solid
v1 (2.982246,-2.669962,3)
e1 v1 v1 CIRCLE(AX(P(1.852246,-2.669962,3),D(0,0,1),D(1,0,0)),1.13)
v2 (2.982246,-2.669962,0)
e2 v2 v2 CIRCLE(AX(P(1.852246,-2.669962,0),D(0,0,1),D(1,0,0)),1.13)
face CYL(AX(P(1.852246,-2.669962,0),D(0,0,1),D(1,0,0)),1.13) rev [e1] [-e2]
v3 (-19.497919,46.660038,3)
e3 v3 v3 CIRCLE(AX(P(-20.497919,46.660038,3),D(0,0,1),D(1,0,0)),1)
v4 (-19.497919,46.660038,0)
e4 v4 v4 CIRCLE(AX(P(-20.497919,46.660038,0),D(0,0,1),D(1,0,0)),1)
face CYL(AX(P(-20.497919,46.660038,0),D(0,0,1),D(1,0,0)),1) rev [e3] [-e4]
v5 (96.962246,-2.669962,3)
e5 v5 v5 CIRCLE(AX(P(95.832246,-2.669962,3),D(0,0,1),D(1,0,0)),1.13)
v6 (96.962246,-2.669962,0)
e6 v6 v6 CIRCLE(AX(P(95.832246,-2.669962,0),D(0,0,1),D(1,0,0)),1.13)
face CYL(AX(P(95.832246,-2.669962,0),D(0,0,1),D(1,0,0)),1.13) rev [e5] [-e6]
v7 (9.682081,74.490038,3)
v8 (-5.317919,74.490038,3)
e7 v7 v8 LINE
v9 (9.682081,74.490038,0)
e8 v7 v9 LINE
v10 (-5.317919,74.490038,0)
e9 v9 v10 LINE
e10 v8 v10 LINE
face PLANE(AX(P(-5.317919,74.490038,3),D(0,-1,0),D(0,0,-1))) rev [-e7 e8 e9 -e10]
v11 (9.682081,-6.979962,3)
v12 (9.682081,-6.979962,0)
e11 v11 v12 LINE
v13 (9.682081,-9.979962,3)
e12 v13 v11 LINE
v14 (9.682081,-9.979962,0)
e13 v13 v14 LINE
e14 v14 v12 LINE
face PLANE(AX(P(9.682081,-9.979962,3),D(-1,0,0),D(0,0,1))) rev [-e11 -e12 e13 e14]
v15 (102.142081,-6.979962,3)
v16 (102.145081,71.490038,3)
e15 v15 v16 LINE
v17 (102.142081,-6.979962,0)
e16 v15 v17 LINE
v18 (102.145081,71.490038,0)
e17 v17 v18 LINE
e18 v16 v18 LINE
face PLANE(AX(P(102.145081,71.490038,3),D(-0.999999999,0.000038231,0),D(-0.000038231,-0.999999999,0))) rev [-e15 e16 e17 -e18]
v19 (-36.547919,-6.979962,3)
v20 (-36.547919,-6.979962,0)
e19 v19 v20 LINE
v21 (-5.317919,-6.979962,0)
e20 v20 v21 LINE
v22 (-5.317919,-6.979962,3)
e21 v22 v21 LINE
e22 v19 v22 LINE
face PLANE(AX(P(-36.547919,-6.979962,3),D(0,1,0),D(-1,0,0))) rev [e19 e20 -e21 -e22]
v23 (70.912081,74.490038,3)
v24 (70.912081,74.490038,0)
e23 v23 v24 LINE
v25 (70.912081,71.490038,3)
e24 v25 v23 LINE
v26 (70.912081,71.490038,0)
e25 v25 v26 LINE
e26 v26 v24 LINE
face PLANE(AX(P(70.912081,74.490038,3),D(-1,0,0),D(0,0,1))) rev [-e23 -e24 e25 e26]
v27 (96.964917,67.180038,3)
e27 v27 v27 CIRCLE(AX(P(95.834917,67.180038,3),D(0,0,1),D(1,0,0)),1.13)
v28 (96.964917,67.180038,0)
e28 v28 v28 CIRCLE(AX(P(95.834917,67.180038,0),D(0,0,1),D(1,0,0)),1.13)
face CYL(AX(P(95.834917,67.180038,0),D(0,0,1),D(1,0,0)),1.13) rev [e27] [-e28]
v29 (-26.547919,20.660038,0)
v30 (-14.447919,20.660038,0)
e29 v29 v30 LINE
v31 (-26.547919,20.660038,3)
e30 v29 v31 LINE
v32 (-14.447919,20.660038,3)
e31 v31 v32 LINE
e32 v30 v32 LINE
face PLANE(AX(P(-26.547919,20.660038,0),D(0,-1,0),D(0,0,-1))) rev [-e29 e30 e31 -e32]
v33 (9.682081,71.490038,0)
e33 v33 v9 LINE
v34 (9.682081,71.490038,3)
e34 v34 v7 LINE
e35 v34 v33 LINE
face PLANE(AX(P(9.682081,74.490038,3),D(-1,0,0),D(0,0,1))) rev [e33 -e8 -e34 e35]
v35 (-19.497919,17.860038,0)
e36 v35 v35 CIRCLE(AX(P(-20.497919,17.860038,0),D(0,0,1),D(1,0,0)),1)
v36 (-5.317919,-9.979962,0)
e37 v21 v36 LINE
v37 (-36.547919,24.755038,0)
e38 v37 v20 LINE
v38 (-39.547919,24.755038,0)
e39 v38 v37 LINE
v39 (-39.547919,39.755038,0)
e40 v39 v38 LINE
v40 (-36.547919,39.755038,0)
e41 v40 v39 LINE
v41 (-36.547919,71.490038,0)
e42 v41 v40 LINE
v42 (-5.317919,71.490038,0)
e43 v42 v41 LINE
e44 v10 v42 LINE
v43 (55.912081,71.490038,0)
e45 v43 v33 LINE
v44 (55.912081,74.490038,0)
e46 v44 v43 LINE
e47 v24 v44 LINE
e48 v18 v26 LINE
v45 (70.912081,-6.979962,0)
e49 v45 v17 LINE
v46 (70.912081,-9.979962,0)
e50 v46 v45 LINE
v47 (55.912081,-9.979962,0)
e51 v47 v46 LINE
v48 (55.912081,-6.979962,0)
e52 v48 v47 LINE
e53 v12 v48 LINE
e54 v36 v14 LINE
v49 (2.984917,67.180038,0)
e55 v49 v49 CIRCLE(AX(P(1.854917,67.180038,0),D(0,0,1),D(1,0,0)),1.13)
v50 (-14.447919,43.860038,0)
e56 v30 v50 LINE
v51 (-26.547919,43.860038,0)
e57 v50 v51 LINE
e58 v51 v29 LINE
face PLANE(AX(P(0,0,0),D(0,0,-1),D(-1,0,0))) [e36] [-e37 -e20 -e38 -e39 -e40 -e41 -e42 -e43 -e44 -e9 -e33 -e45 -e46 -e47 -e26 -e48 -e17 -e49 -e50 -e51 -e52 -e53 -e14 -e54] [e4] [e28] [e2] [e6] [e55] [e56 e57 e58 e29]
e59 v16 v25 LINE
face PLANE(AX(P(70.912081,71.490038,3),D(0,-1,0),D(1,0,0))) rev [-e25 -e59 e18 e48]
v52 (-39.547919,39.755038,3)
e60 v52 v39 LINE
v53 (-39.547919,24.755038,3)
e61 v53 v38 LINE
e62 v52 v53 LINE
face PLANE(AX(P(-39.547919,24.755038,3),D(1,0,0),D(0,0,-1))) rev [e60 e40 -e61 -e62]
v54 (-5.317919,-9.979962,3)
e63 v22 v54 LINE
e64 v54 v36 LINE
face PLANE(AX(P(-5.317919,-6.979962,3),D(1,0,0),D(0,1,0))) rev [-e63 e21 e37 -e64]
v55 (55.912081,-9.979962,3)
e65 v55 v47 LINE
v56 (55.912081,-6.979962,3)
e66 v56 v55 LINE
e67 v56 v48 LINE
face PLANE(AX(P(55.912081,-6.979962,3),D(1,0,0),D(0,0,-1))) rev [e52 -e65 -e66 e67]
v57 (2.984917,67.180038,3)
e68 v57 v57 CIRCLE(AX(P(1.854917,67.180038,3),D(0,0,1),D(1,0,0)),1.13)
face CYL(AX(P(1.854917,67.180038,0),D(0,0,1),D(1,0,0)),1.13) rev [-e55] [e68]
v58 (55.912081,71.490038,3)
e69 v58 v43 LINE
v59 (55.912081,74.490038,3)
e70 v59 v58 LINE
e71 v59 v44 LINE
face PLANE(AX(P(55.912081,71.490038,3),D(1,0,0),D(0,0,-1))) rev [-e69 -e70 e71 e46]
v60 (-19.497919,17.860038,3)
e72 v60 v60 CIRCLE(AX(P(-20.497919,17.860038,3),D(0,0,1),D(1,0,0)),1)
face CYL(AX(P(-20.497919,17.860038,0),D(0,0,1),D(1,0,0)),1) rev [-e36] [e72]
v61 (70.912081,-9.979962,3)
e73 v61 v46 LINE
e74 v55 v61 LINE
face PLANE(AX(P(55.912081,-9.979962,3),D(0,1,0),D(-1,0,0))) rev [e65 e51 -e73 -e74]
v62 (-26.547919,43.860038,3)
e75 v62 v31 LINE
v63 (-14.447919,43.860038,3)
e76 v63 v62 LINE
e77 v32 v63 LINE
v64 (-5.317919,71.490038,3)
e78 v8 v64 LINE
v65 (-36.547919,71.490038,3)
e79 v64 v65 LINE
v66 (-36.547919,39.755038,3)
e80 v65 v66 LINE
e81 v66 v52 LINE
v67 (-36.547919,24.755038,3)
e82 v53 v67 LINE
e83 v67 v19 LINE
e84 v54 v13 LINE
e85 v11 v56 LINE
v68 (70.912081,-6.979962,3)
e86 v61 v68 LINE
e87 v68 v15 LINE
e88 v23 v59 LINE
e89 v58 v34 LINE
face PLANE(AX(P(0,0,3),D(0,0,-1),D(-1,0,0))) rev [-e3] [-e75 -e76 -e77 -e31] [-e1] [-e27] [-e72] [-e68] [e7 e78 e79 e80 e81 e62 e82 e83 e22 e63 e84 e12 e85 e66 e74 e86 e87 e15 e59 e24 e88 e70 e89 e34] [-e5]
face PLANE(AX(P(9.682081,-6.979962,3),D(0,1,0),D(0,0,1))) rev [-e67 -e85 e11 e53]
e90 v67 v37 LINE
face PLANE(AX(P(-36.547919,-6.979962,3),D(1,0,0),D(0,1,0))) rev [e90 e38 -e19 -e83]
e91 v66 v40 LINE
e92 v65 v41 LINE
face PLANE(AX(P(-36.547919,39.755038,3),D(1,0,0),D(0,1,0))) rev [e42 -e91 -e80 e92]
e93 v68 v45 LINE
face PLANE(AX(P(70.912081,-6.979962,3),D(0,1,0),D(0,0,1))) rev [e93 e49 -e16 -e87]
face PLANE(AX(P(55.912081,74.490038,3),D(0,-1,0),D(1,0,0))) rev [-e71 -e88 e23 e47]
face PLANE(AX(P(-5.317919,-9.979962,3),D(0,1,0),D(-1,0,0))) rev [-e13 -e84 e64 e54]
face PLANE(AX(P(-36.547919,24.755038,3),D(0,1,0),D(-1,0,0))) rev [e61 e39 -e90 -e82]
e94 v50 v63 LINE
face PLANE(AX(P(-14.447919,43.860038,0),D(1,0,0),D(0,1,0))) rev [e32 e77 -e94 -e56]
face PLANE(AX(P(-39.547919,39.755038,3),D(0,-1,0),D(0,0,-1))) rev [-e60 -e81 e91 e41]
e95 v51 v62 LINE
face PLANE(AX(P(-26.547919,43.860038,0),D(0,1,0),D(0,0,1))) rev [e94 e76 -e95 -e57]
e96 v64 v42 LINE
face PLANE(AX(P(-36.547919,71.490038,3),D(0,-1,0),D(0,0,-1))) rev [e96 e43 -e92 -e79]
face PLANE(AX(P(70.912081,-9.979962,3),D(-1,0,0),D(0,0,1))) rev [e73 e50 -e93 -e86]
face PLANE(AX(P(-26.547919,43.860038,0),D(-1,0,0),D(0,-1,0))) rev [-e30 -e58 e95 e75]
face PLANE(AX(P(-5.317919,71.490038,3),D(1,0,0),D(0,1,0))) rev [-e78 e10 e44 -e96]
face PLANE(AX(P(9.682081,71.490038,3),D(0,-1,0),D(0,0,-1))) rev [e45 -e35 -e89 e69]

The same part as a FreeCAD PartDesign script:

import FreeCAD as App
import Part
import Sketcher

V = App.Vector
Q = App.Units.Quantity

doc = App.newDocument("Part")
body = doc.addObject("PartDesign::Body", "Body")

# Sketch on XY plane
sketch1 = body.newObject("Sketcher::SketchObject", "Sketch")
sketch1.AttachmentSupport = (doc.getObject("XY_Plane"), [""])
sketch1.MapMode = "FlatFace"
sketch1.addGeometry(Part.LineSegment(V(-5.317919, 71.490038, 0), V(-36.547919, 71.490038, 0)), False)
sketch1.addGeometry(Part.LineSegment(V(-36.547919, 71.490038, 0), V(-36.547919, 39.755038, 0)), False)
sketch1.addGeometry(Part.LineSegment(V(-36.547919, 39.755038, 0), V(-39.547919, 39.755038, 0)), False)
sketch1.addGeometry(Part.LineSegment(V(-39.547919, 39.755038, 0), V(-39.547919, 24.755038, 0)), False)
sketch1.addGeometry(Part.LineSegment(V(-39.547919, 24.755038, 0), V(-36.547919, 24.755038, 0)), False)
sketch1.addGeometry(Part.LineSegment(V(-36.547919, 24.755038, 0), V(-36.547919, -6.979962, 0)), False)
sketch1.addGeometry(Part.LineSegment(V(-36.547919, -6.979962, 0), V(-5.317919, -6.979962, 0)), False)
sketch1.addGeometry(Part.LineSegment(V(-5.317919, -6.979962, 0), V(-5.317919, -9.979962, 0)), False)
sketch1.addGeometry(Part.LineSegment(V(-5.317919, -9.979962, 0), V(9.682081, -9.979962, 0)), False)
sketch1.addGeometry(Part.LineSegment(V(9.682081, -9.979962, 0), V(9.682081, -6.979962, 0)), False)
sketch1.addGeometry(Part.LineSegment(V(9.682081, -6.979962, 0), V(55.912081, -6.979962, 0)), False)
sketch1.addGeometry(Part.LineSegment(V(55.912081, -6.979962, 0), V(55.912081, -9.979962, 0)), False)
sketch1.addGeometry(Part.LineSegment(V(55.912081, -9.979962, 0), V(70.912081, -9.979962, 0)), False)
sketch1.addGeometry(Part.LineSegment(V(70.912081, -9.979962, 0), V(70.912081, -6.979962, 0)), False)
sketch1.addGeometry(Part.LineSegment(V(70.912081, -6.979962, 0), V(102.142081, -6.979962, 0)), False)
sketch1.addGeometry(Part.LineSegment(V(102.142081, -6.979962, 0), V(102.145081, 71.490038, 0)), False)
sketch1.addGeometry(Part.LineSegment(V(102.145081, 71.490038, 0), V(70.912081, 71.490038, 0)), False)
sketch1.addGeometry(Part.LineSegment(V(70.912081, 71.490038, 0), V(70.912081, 74.490038, 0)), False)
sketch1.addGeometry(Part.LineSegment(V(70.912081, 74.490038, 0), V(55.912081, 74.490038, 0)), False)
sketch1.addGeometry(Part.LineSegment(V(55.912081, 74.490038, 0), V(55.912081, 71.490038, 0)), False)
sketch1.addGeometry(Part.LineSegment(V(55.912081, 71.490038, 0), V(9.682081, 71.490038, 0)), False)
sketch1.addGeometry(Part.LineSegment(V(9.682081, 71.490038, 0), V(9.682081, 74.490038, 0)), False)
sketch1.addGeometry(Part.LineSegment(V(9.682081, 74.490038, 0), V(-5.317919, 74.490038, 0)), False)
sketch1.addGeometry(Part.LineSegment(V(-5.317919, 74.490038, 0), V(-5.317919, 71.490038, 0)), False)
sketch1.addConstraint(Sketcher.Constraint("Coincident", 0, 2, 1, 1))
sketch1.addConstraint(Sketcher.Constraint("Coincident", 1, 2, 2, 1))
sketch1.addConstraint(Sketcher.Constraint("Coincident", 2, 2, 3, 1))
sketch1.addConstraint(Sketcher.Constraint("Coincident", 3, 2, 4, 1))
sketch1.addConstraint(Sketcher.Constraint("Coincident", 4, 2, 5, 1))
sketch1.addConstraint(Sketcher.Constraint("Coincident", 5, 2, 6, 1))
sketch1.addConstraint(Sketcher.Constraint("Coincident", 6, 2, 7, 1))
sketch1.addConstraint(Sketcher.Constraint("Coincident", 7, 2, 8, 1))
sketch1.addConstraint(Sketcher.Constraint("Coincident", 8, 2, 9, 1))
sketch1.addConstraint(Sketcher.Constraint("Coincident", 9, 2, 10, 1))
sketch1.addConstraint(Sketcher.Constraint("Coincident", 10, 2, 11, 1))
sketch1.addConstraint(Sketcher.Constraint("Coincident", 11, 2, 12, 1))
sketch1.addConstraint(Sketcher.Constraint("Coincident", 12, 2, 13, 1))
sketch1.addConstraint(Sketcher.Constraint("Coincident", 13, 2, 14, 1))
sketch1.addConstraint(Sketcher.Constraint("Coincident", 14, 2, 15, 1))
sketch1.addConstraint(Sketcher.Constraint("Coincident", 15, 2, 16, 1))
sketch1.addConstraint(Sketcher.Constraint("Coincident", 16, 2, 17, 1))
sketch1.addConstraint(Sketcher.Constraint("Coincident", 17, 2, 18, 1))
sketch1.addConstraint(Sketcher.Constraint("Coincident", 18, 2, 19, 1))
sketch1.addConstraint(Sketcher.Constraint("Coincident", 19, 2, 20, 1))
sketch1.addConstraint(Sketcher.Constraint("Coincident", 20, 2, 21, 1))
sketch1.addConstraint(Sketcher.Constraint("Coincident", 21, 2, 22, 1))
sketch1.addConstraint(Sketcher.Constraint("Coincident", 22, 2, 23, 1))
sketch1.addConstraint(Sketcher.Constraint("Coincident", 23, 2, 0, 1))
sketch1.addConstraint(Sketcher.Constraint("Horizontal", 0))
sketch1.addConstraint(Sketcher.Constraint("Vertical", 1))
sketch1.addConstraint(Sketcher.Constraint("Horizontal", 2))
sketch1.addConstraint(Sketcher.Constraint("Vertical", 3))
sketch1.addConstraint(Sketcher.Constraint("Horizontal", 4))
sketch1.addConstraint(Sketcher.Constraint("Vertical", 5))
sketch1.addConstraint(Sketcher.Constraint("Horizontal", 6))
sketch1.addConstraint(Sketcher.Constraint("Vertical", 7))
sketch1.addConstraint(Sketcher.Constraint("Horizontal", 8))
sketch1.addConstraint(Sketcher.Constraint("Vertical", 9))
sketch1.addConstraint(Sketcher.Constraint("Horizontal", 10))
sketch1.addConstraint(Sketcher.Constraint("Vertical", 11))
sketch1.addConstraint(Sketcher.Constraint("Horizontal", 12))
sketch1.addConstraint(Sketcher.Constraint("Vertical", 13))
sketch1.addConstraint(Sketcher.Constraint("Horizontal", 14))
sketch1.addConstraint(Sketcher.Constraint("Horizontal", 16))
sketch1.addConstraint(Sketcher.Constraint("Vertical", 17))
sketch1.addConstraint(Sketcher.Constraint("Horizontal", 18))
sketch1.addConstraint(Sketcher.Constraint("Vertical", 19))
sketch1.addConstraint(Sketcher.Constraint("Horizontal", 20))
sketch1.addConstraint(Sketcher.Constraint("Vertical", 21))
sketch1.addConstraint(Sketcher.Constraint("Horizontal", 22))
sketch1.addConstraint(Sketcher.Constraint("Vertical", 23))
sketch1.addConstraint(Sketcher.Constraint("Horizontal", 6, 2, 9, 2))
sketch1.addConstraint(Sketcher.Constraint("Horizontal", 8, 2, 11, 2))
sketch1.addConstraint(Sketcher.Constraint("Horizontal", 10, 2, 13, 2))
sketch1.addConstraint(Sketcher.Constraint("Horizontal", 0, 2, 15, 2))
sketch1.addConstraint(Sketcher.Constraint("Horizontal", 16, 2, 19, 2))
sketch1.addConstraint(Sketcher.Constraint("Horizontal", 18, 2, 21, 2))
sketch1.addConstraint(Sketcher.Constraint("Vertical", 1, 2, 4, 2))
sketch1.addConstraint(Sketcher.Constraint("Vertical", 13, 2, 16, 2))
sketch1.addConstraint(Sketcher.Constraint("Vertical", 11, 2, 18, 2))
sketch1.addConstraint(Sketcher.Constraint("Vertical", 9, 2, 20, 2))
sketch1.addConstraint(Sketcher.Constraint("Vertical", 7, 2, 22, 2))
sketch1.addConstraint(Sketcher.Constraint("Equal", 8, 12))
sketch1.addConstraint(Sketcher.Constraint("Equal", 6, 14))
sketch1.addConstraint(Sketcher.Constraint("Equal", 22, 3))
sketch1.addConstraint(Sketcher.Constraint("Equal", 1, 5))
sketch1.addConstraint(Sketcher.Constraint("Equal", 4, 7))
sketch1.addConstraint(Sketcher.Constraint("Equal", 13, 17))
sketch1.addConstraint(Sketcher.Constraint("DistanceX", 2, 2, 2, 1, Q("3 mm")))
sketch1.addConstraint(Sketcher.Constraint("DistanceX", 8, 1, 8, 2, Q("15 mm")))
sketch1.addConstraint(Sketcher.Constraint("DistanceX", 0, 2, 0, 1, Q("31.23 mm")))
sketch1.addConstraint(Sketcher.Constraint("DistanceX", 10, 1, 10, 2, Q("46.23 mm")))
sketch1.addConstraint(Sketcher.Constraint("Distance", 15, Q("78.47 mm")))
sketch1.addConstraint(Sketcher.Constraint("DistanceX", 16, 2, 16, 1, Q("31.233 mm")))
sketch1.addConstraint(Sketcher.Constraint("DistanceX", 0, 2, -1, 1, Q("36.547919 mm")))
sketch1.addConstraint(Sketcher.Constraint("DistanceY", -1, 1, 0, 2, Q("71.490038 mm")))
pad1 = body.newObject("PartDesign::Pad", "Pad")
pad1.Profile = sketch1
pad1.Length = 3

# Sketch on XY plane
sketch2 = body.newObject("Sketcher::SketchObject", "Sketch001")
sketch2.AttachmentSupport = (doc.getObject("XY_Plane"), [""])
sketch2.MapMode = "FlatFace"
sketch2.AttachmentOffset = App.Placement(V(0, 0, 3), App.Rotation())
sketch2.addGeometry(Part.Circle(V(95.834917, 67.180038, 0), V(0, 0, 1), 1.13), False)
sketch2.addGeometry(Part.Circle(V(95.832246, -2.669962, 0), V(0, 0, 1), 1.13), False)
sketch2.addGeometry(Part.Circle(V(1.854917, 67.180038, 0), V(0, 0, 1), 1.13), False)
sketch2.addGeometry(Part.Circle(V(1.852246, -2.669962, 0), V(0, 0, 1), 1.13), False)
sketch2.addConstraint(Sketcher.Constraint("Equal", 0, 1))
sketch2.addConstraint(Sketcher.Constraint("Equal", 1, 2))
sketch2.addConstraint(Sketcher.Constraint("Equal", 2, 3))
sketch2.addConstraint(Sketcher.Constraint("Horizontal", 0, 3, 2, 3))
sketch2.addConstraint(Sketcher.Constraint("Horizontal", 1, 3, 3, 3))
sketch2.addConstraint(Sketcher.Constraint("Diameter", 0, Q("2.26 mm")))
sketch2.addConstraint(Sketcher.Constraint("DistanceY", 1, 3, 0, 3, Q("69.85 mm")))
sketch2.addConstraint(Sketcher.Constraint("DistanceX", 2, 3, 0, 3, Q("93.98 mm")))
sketch2.addConstraint(Sketcher.Constraint("DistanceX", 3, 3, 1, 3, Q("93.98 mm")))
sketch2.addConstraint(Sketcher.Constraint("DistanceX", 1, 3, 0, 3, Q("0.00267 mm")))
sketch2.addConstraint(Sketcher.Constraint("DistanceX", -1, 1, 0, 3, Q("95.834917 mm")))
sketch2.addConstraint(Sketcher.Constraint("DistanceY", -1, 1, 0, 3, Q("67.180038 mm")))
pocket1 = body.newObject("PartDesign::Pocket", "Pocket")
pocket1.Profile = sketch2
pocket1.Length = 3

# Sketch on XY plane
sketch3 = body.newObject("Sketcher::SketchObject", "Sketch002")
sketch3.AttachmentSupport = (doc.getObject("XY_Plane"), [""])
sketch3.MapMode = "FlatFace"
sketch3.AttachmentOffset = App.Placement(V(0, 0, 3), App.Rotation())
sketch3.addGeometry(Part.Circle(V(-20.497919, 46.660038, 0), V(0, 0, 1), 1), False)
sketch3.addGeometry(Part.Circle(V(-20.497919, 17.860038, 0), V(0, 0, 1), 1), False)
sketch3.addGeometry(Part.LineSegment(V(-26.547919, 43.860038, 0), V(-26.547919, 20.660038, 0)), False)
sketch3.addGeometry(Part.LineSegment(V(-26.547919, 20.660038, 0), V(-14.447919, 20.660038, 0)), False)
sketch3.addGeometry(Part.LineSegment(V(-14.447919, 20.660038, 0), V(-14.447919, 43.860038, 0)), False)
sketch3.addGeometry(Part.LineSegment(V(-14.447919, 43.860038, 0), V(-26.547919, 43.860038, 0)), False)
sketch3.addConstraint(Sketcher.Constraint("Coincident", 2, 2, 3, 1))
sketch3.addConstraint(Sketcher.Constraint("Coincident", 3, 2, 4, 1))
sketch3.addConstraint(Sketcher.Constraint("Coincident", 4, 2, 5, 1))
sketch3.addConstraint(Sketcher.Constraint("Coincident", 5, 2, 2, 1))
sketch3.addConstraint(Sketcher.Constraint("Vertical", 2))
sketch3.addConstraint(Sketcher.Constraint("Horizontal", 3))
sketch3.addConstraint(Sketcher.Constraint("Vertical", 4))
sketch3.addConstraint(Sketcher.Constraint("Horizontal", 5))
sketch3.addConstraint(Sketcher.Constraint("Equal", 0, 1))
sketch3.addConstraint(Sketcher.Constraint("Vertical", 0, 3, 1, 3))
sketch3.addConstraint(Sketcher.Constraint("Diameter", 0, Q("2 mm")))
sketch3.addConstraint(Sketcher.Constraint("DistanceX", 3, 1, 3, 2, Q("12.1 mm")))
sketch3.addConstraint(Sketcher.Constraint("DistanceY", 2, 2, 2, 1, Q("23.2 mm")))
sketch3.addConstraint(Sketcher.Constraint("DistanceY", 2, 2, 0, 3, Q("26 mm")))
sketch3.addConstraint(Sketcher.Constraint("DistanceY", 1, 3, 4, 2, Q("26 mm")))
sketch3.addConstraint(Sketcher.Constraint("DistanceX", 2, 2, 1, 3, Q("6.05 mm")))
sketch3.addConstraint(Sketcher.Constraint("DistanceX", 0, 3, -1, 1, Q("20.497919 mm")))
sketch3.addConstraint(Sketcher.Constraint("DistanceY", -1, 1, 0, 3, Q("46.660038 mm")))
pocket2 = body.newObject("PartDesign::Pocket", "Pocket001")
pocket2.Profile = sketch3
pocket2.Length = 3

doc.recompute()
